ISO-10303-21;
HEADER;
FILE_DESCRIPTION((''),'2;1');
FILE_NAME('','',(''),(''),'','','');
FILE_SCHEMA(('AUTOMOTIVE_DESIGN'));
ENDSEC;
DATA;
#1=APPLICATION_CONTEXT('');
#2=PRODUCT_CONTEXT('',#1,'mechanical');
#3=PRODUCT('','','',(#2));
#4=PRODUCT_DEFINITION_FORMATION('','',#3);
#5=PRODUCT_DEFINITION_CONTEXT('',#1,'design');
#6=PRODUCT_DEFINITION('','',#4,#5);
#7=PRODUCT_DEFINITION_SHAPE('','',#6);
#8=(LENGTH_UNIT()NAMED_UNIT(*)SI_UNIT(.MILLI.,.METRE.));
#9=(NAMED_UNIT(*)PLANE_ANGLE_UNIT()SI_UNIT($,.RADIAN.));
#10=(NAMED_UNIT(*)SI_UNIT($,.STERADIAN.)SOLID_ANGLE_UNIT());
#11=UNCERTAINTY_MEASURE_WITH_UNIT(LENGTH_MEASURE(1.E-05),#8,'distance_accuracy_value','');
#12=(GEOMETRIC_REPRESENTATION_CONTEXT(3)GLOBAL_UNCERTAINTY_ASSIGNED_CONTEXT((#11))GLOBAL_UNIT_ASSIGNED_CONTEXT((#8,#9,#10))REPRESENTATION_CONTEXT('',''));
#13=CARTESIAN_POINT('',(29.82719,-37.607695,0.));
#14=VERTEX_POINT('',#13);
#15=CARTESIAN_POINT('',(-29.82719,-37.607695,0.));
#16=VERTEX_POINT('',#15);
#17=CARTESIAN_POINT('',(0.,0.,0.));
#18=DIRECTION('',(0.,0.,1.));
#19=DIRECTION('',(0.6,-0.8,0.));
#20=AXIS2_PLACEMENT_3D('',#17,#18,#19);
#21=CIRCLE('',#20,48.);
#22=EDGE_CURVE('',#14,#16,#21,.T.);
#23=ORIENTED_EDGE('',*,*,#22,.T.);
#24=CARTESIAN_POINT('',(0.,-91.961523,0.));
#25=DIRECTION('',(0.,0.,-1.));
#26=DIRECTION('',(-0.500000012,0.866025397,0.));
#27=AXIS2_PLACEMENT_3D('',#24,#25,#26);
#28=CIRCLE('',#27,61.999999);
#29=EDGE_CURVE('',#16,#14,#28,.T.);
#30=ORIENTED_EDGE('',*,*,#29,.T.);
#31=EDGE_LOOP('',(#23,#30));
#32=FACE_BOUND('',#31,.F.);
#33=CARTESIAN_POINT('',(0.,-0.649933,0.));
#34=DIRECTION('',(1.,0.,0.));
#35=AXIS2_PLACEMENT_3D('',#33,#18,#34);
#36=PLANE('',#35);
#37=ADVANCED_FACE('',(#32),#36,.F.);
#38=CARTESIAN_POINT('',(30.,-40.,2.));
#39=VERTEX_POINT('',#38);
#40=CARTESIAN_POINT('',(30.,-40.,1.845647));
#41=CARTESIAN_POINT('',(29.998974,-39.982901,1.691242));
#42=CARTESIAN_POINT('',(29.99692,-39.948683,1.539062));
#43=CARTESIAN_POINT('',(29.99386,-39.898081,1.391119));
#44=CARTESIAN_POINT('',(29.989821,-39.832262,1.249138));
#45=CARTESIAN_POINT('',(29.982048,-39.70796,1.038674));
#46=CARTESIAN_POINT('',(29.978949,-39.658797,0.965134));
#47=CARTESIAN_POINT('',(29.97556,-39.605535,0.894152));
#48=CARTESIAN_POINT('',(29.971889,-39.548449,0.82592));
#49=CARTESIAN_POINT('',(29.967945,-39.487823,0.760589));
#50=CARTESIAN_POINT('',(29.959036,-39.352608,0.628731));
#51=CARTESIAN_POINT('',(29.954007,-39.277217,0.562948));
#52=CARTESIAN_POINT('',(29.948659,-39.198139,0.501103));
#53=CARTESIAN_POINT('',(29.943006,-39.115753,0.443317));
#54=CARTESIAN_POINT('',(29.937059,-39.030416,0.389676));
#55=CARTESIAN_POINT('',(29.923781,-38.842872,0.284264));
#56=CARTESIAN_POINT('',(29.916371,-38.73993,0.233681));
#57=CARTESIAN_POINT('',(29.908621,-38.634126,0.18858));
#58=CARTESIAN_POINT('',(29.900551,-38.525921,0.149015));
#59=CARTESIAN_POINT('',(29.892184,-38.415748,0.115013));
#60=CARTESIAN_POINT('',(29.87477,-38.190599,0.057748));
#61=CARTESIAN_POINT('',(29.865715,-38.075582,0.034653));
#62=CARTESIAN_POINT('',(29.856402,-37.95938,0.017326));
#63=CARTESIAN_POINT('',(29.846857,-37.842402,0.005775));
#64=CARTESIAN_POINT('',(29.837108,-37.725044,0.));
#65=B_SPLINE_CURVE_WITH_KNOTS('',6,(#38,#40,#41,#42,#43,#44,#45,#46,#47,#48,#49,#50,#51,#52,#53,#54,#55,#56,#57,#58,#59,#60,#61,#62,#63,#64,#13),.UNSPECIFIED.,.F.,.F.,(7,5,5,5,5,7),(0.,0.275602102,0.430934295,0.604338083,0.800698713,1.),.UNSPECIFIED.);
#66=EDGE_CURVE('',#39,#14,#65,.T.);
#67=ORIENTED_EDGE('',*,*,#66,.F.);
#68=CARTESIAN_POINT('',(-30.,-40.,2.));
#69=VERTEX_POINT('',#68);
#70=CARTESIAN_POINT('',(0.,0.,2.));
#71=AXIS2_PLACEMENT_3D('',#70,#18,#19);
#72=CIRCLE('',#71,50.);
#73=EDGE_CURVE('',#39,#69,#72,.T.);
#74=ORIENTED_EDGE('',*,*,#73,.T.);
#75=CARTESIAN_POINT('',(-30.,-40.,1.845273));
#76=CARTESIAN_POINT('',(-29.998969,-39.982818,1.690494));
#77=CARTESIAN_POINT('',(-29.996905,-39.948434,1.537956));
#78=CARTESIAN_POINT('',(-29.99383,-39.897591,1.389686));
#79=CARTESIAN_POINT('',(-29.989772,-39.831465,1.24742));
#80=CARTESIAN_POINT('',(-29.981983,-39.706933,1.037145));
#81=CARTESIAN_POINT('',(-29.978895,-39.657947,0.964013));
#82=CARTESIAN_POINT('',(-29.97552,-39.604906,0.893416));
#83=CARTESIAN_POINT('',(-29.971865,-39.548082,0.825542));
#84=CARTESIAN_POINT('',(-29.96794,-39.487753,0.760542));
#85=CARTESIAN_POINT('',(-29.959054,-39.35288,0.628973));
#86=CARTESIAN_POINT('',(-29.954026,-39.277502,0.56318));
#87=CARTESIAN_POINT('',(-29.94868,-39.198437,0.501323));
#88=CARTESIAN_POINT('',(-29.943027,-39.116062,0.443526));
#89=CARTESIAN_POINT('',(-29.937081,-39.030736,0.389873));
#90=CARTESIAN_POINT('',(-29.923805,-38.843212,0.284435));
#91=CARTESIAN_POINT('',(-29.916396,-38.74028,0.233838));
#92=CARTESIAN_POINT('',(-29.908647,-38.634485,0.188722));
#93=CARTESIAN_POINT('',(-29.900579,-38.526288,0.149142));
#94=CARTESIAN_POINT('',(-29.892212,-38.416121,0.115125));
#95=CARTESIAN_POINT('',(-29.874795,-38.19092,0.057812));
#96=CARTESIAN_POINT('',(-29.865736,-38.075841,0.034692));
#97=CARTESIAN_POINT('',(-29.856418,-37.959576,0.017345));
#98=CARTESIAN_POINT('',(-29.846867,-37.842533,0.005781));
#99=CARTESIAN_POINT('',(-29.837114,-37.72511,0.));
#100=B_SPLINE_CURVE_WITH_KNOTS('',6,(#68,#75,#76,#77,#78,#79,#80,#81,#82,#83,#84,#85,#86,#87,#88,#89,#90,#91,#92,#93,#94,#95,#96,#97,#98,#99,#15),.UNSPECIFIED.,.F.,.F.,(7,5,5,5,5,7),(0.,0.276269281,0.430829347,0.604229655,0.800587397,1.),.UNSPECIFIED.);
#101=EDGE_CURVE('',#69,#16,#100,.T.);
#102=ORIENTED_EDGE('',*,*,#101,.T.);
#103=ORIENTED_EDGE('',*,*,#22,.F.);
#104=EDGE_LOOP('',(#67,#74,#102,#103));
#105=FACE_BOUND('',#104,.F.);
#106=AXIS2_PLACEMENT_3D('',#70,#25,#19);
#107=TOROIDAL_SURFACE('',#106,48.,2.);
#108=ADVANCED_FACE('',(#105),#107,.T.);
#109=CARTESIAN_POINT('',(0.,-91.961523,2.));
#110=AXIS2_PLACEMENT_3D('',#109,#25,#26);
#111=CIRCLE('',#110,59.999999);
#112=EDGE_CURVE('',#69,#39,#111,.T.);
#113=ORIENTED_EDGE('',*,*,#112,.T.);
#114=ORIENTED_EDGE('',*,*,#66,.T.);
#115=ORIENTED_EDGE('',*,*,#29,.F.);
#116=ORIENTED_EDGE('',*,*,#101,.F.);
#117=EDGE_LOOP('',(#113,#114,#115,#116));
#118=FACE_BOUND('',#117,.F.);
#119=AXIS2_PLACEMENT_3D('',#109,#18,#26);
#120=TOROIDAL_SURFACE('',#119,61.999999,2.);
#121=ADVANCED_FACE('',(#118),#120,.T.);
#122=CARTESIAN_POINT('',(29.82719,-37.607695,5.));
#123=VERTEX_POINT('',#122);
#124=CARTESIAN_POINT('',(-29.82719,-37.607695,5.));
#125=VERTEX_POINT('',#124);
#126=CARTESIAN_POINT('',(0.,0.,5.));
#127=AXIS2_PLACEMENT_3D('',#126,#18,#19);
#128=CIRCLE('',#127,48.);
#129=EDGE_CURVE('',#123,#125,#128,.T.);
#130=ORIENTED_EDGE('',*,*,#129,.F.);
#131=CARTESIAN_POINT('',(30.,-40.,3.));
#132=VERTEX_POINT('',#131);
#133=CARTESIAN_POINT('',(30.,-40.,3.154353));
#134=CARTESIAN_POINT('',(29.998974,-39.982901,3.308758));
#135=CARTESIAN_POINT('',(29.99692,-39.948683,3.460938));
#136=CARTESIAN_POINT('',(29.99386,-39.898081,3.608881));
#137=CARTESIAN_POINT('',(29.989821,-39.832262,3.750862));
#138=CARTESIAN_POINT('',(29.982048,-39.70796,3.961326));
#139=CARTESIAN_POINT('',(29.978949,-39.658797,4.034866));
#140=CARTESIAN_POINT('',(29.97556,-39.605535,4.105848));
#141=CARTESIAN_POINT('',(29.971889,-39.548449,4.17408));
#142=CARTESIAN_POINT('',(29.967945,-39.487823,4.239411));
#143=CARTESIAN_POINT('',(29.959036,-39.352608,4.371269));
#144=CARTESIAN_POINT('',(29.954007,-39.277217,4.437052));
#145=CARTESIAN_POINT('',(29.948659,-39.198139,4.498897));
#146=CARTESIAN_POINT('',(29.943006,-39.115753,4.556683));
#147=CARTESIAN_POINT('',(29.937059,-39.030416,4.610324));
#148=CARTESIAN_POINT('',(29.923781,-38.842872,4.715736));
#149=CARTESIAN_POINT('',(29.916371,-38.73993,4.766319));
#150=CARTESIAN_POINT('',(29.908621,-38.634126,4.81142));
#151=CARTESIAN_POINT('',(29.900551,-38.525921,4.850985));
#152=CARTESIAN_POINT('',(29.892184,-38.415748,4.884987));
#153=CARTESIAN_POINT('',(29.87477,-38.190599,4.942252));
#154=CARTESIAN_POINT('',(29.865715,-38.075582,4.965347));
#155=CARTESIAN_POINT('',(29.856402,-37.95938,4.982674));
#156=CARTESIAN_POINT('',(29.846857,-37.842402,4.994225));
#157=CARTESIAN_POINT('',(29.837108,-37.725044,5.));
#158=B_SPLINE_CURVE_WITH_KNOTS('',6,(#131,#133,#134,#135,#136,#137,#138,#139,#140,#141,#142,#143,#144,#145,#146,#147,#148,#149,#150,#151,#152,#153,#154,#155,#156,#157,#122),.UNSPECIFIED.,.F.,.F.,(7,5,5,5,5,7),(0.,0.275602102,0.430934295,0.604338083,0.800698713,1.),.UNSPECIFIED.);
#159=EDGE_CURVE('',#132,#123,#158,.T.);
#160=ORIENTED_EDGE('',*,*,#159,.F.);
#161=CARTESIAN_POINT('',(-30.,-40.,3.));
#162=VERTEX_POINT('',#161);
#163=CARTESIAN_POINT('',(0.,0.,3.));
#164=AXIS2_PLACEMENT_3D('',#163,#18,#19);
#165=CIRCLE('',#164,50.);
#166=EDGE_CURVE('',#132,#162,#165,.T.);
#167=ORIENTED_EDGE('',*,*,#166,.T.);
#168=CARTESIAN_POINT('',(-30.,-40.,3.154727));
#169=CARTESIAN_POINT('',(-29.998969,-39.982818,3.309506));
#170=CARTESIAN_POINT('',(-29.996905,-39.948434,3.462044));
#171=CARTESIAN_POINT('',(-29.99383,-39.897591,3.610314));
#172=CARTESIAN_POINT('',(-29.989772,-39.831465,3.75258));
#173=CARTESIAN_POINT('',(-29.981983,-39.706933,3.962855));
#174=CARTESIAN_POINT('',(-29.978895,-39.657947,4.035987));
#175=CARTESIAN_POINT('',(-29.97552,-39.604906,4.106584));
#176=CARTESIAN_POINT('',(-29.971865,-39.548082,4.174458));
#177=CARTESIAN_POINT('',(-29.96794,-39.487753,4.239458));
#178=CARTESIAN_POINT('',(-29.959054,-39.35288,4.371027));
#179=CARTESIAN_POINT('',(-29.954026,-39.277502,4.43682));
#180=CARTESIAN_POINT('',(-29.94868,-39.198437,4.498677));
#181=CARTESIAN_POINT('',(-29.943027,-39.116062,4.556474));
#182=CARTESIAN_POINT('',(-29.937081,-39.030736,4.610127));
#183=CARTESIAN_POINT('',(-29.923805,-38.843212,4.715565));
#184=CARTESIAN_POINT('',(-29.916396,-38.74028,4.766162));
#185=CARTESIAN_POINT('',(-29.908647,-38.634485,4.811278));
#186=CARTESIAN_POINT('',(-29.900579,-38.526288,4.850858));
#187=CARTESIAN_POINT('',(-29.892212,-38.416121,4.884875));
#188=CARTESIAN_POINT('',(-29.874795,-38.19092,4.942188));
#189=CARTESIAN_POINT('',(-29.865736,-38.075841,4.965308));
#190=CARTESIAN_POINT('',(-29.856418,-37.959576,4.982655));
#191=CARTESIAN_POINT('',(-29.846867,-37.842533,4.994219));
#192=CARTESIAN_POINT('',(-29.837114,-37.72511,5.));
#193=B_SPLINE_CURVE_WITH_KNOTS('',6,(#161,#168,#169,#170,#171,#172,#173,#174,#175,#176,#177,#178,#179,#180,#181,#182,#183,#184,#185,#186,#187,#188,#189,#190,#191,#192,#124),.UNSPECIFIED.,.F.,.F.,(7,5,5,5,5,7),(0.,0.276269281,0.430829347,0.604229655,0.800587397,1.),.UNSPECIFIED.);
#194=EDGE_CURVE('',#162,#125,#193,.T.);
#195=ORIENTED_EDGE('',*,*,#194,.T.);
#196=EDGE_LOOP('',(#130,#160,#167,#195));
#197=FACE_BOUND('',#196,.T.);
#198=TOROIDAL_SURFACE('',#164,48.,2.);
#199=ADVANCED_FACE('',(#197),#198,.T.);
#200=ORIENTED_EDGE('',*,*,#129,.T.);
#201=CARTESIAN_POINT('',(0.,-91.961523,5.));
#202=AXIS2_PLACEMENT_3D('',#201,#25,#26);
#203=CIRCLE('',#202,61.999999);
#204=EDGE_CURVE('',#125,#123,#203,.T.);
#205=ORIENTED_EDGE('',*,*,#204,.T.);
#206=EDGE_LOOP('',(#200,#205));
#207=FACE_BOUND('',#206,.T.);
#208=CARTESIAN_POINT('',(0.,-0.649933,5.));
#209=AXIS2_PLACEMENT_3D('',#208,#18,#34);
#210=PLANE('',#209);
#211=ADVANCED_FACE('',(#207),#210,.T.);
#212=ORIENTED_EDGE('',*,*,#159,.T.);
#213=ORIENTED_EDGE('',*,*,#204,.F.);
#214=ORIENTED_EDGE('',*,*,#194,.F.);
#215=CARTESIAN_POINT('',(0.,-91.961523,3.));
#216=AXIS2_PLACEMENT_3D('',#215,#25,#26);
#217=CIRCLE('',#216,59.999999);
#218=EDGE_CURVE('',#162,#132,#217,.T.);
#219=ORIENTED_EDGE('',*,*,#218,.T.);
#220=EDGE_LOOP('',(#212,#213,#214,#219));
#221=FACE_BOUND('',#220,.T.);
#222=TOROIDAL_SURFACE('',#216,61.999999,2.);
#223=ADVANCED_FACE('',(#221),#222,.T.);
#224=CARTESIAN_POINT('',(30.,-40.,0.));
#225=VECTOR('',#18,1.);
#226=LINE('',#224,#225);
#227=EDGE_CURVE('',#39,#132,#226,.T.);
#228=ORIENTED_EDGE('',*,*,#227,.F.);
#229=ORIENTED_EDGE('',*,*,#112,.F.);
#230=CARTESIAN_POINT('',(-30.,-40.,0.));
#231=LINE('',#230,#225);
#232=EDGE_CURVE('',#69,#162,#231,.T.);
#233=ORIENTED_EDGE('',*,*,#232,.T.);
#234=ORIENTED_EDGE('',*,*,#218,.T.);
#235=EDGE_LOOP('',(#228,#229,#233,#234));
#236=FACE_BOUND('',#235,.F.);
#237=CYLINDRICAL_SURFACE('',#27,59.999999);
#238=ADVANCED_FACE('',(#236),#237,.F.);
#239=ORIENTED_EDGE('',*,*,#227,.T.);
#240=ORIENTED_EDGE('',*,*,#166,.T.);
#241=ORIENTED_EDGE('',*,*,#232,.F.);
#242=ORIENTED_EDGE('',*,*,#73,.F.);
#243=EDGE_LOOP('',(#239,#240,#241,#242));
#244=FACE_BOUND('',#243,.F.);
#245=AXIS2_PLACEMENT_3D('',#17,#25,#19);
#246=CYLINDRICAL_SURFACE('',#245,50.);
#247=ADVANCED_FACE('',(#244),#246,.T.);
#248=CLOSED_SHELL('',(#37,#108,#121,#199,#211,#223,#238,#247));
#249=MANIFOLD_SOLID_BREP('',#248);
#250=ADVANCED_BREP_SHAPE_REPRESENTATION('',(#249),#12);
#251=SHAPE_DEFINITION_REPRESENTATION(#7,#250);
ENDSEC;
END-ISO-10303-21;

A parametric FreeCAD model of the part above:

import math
import FreeCAD as App
import Part
import Sketcher

V = App.Vector


def edges_at(feature, points):
    """Names of the edges that pass closest to the given points."""
    edges = feature.Shape.Edges
    near = lambda p: min(range(len(edges)), key=lambda i: edges[i].distToShape(Part.Vertex(*p))[0])
    return sorted({f"Edge{near(p) + 1}" for p in points})

doc = App.newDocument("Part")
params = doc.addObject("Spreadsheet::Sheet", "Params")
for row, (alias, value) in enumerate([
    ("sketch1_radius", "59.999999 mm"),
    ("sketch1_radius2", "50 mm"),
    ("pad1_length", "5 mm"),
    ("fillet_radius", "2 mm"),
], start=1):
    params.set(f"A{row}", alias)
    params.set(f"B{row}", "=" + value)
    params.setAlias(f"B{row}", alias)

body = doc.addObject("PartDesign::Body", "Body")

# Sketch on XY plane
sketch1 = body.newObject("Sketcher::SketchObject", "Sketch")
sketch1.AttachmentSupport = (doc.getObject("XY_Plane"), [""])
sketch1.MapMode = "FlatFace"
sketch1.addGeometry([
    Part.ArcOfCircle(Part.Circle(V(0, -91.961523, 0), V(0, 0, 1), 59.999999), math.radians(59.999999), math.radians(120.000001)),
    Part.ArcOfCircle(Part.Circle(V(0, 0, 0), V(0, 0, 1), 50), math.radians(-53.130102), math.radians(233.130102)),
], False)
sketch1.addConstraint([
    Sketcher.Constraint("Coincident", 0, 1, 1, 1),
    Sketcher.Constraint("Coincident", 1, 2, 0, 2),
    Sketcher.Constraint("Coincident", 1, 3, -1, 1),
    Sketcher.Constraint("PointOnObject", 0, 3, -2),
    Sketcher.Constraint("Radius", 0, 59.999999),
    Sketcher.Constraint("Radius", 1, 50.0),
    Sketcher.Constraint("DistanceX", -1, 1, 0, 1, 30.0),
])
sketch1.setExpression("Constraints[4]", "Params.sketch1_radius")
sketch1.setExpression("Constraints[5]", "Params.sketch1_radius2")
pad1 = body.newObject("PartDesign::Pad", "Pad")
pad1.Profile = sketch1
pad1.setExpression("Length", "Params.pad1_length")
doc.recompute()

fillet = body.newObject("PartDesign::Fillet", "Fillet")
fillet.Base = (pad1, edges_at(pad1, [
    (0, -31.962, 5),
    (0, 50, 5),
    (0, -31.962, 0),
    (0, 50, 0),
]))
fillet.setExpression("Radius", "Params.fillet_radius")

doc.recompute()
